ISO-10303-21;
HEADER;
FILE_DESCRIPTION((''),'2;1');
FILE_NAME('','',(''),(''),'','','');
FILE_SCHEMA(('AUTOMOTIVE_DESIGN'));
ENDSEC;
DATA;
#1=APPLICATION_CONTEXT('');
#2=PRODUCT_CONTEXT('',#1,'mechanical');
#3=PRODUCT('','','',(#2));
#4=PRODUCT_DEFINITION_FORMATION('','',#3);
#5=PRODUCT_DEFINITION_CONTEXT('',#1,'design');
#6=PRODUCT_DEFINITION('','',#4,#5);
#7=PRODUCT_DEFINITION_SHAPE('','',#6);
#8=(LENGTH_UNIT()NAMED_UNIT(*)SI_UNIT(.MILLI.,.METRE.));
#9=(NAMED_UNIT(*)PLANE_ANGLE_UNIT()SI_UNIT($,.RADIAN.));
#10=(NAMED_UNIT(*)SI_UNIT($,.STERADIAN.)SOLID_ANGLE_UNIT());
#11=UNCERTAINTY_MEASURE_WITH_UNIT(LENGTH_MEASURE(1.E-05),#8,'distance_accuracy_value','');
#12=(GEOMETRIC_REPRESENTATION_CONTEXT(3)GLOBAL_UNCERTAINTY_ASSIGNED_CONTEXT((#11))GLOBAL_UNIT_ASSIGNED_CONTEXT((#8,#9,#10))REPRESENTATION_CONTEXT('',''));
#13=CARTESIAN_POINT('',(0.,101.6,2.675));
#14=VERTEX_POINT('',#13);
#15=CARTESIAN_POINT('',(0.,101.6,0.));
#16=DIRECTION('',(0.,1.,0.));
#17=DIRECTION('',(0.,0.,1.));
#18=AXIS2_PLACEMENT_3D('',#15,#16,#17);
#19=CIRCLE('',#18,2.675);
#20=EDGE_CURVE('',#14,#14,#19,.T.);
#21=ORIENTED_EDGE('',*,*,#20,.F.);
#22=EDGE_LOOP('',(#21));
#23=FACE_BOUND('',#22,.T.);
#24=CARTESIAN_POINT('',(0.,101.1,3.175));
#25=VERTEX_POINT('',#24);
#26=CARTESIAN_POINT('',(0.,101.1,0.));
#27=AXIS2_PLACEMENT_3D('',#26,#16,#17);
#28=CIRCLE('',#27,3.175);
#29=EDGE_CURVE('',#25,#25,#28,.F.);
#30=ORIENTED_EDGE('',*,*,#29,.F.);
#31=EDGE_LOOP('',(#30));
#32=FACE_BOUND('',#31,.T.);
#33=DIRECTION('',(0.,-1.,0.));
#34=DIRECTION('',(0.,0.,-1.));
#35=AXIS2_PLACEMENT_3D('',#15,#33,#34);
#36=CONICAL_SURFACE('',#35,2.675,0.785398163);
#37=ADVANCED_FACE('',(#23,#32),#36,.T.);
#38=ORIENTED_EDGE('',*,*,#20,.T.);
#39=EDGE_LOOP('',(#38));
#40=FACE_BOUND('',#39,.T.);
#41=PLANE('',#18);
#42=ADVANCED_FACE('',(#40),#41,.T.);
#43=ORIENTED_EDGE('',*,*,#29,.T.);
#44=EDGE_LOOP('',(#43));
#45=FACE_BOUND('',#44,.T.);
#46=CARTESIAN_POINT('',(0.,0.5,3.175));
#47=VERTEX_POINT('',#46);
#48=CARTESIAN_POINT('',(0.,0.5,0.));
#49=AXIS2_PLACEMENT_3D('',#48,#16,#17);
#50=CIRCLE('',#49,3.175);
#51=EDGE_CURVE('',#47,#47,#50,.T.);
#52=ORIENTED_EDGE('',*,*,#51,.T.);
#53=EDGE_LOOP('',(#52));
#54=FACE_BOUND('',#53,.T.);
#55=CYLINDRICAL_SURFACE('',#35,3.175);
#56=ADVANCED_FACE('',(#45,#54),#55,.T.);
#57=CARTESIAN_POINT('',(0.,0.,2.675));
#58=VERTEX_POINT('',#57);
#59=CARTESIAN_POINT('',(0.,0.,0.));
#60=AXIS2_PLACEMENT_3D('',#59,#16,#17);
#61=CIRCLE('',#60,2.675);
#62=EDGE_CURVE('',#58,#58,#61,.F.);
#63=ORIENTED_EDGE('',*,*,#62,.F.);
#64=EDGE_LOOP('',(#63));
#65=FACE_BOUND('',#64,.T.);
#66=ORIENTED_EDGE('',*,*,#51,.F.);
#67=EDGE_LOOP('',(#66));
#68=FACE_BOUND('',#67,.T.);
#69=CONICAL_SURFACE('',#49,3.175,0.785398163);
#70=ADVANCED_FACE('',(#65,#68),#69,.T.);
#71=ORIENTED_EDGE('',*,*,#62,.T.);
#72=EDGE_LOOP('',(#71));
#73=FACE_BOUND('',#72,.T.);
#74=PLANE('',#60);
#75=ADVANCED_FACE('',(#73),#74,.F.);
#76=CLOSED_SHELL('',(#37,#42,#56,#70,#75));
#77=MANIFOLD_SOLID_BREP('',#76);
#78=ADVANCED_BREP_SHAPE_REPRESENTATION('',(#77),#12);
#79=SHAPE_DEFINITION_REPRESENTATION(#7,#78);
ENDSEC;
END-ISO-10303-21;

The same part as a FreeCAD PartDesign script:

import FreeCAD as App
import Part
import Sketcher

V = App.Vector
Q = App.Units.Quantity


def edges_at(feature, points):
    """Names of the edges that pass closest to the given points."""
    edges = feature.Shape.Edges
    near = lambda p: min(range(len(edges)), key=lambda i: edges[i].distToShape(Part.Vertex(*p))[0])
    return sorted({f"Edge{near(p) + 1}" for p in points})

doc = App.newDocument("Part")
params = doc.addObject("Spreadsheet::Sheet", "Params")
for row, (alias, value) in enumerate([
    ("sketch1_diameter", "0.25 in"),
    ("pad1_length", "4 in"),
    ("chamfer_size", "0.5 mm"),
], start=1):
    params.set(f"A{row}", alias)
    params.set(f"B{row}", "=" + value)
    params.setAlias(f"B{row}", alias)

body = doc.addObject("PartDesign::Body", "Body")

sketch1 = body.newObject("Sketcher::SketchObject", "Sketch")
sketch1.AttachmentSupport = (doc.getObject("XZ_Plane"), [""])
sketch1.MapMode = "FlatFace"
sketch1.addGeometry(Part.Circle(V(0, 0, 0), V(0, 0, 1), 3.2), False)
sketch1.addConstraint([
    Sketcher.Constraint("Coincident", 0, 3, -1, 1),
    Sketcher.Constraint("Diameter", 0, Q("0.25 in")),
])
sketch1.setExpression("Constraints[1]", "Params.sketch1_diameter")
pad1 = body.newObject("PartDesign::Pad", "Pad")
pad1.Profile = sketch1
pad1.setExpression("Length", "Params.pad1_length")
pad1.Reversed = True
doc.recompute()

chamfer = body.newObject("PartDesign::Chamfer", "Chamfer")
chamfer.Base = (pad1, edges_at(pad1, [(-3.175, 0, 0), (-3.175, 101.6, 0)]))
chamfer.setExpression("Size", "Params.chamfer_size")

doc.recompute()
